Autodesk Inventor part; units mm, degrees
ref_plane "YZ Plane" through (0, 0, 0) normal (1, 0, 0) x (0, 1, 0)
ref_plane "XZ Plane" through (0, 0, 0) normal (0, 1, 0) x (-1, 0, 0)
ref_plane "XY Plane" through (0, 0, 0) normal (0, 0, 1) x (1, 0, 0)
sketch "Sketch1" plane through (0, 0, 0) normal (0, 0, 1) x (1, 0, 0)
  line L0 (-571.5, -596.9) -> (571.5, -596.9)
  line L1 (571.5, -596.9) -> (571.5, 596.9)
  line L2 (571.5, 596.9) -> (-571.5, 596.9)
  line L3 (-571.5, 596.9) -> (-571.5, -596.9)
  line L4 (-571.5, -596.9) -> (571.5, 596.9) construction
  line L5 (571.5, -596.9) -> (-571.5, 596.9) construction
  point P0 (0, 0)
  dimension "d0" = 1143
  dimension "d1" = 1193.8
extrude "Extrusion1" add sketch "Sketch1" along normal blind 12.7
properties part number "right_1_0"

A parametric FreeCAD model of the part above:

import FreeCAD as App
import Part
import Sketcher
Q = App.Units.Quantity

doc = App.newDocument("Part")
params = doc.addObject("Spreadsheet::Sheet", "Params")
for row, (alias, value) in enumerate([
    ("sketch1_width", "45 in"),
    ("sketch1_height", "47 in"),
    ("pad1_length", "0.5 in"),
], start=1):
    params.set(f"A{row}", alias)
    params.set(f"B{row}", "=" + value)
    params.setAlias(f"B{row}", alias)

body = doc.addObject("PartDesign::Body", "Body")

sketch1 = body.newObject("Sketcher::SketchObject", "Sketch")
sketch1.AttachmentSupport = (doc.getObject("XY_Plane"), [""])
sketch1.MapMode = "FlatFace"
sketch1.addGeometry(Part.LineSegment(App.Vector(-572, 597, 0), App.Vector(-572, -597, 0)), False)
sketch1.addGeometry(Part.LineSegment(App.Vector(-572, -597, 0), App.Vector(572, -597, 0)), False)
sketch1.addGeometry(Part.LineSegment(App.Vector(572, -597, 0), App.Vector(572, 597, 0)), False)
sketch1.addGeometry(Part.LineSegment(App.Vector(572, 597, 0), App.Vector(-572, 597, 0)), False)
sketch1.addConstraint(Sketcher.Constraint("Coincident", 0, 2, 1, 1))
sketch1.addConstraint(Sketcher.Constraint("Coincident", 1, 2, 2, 1))
sketch1.addConstraint(Sketcher.Constraint("Coincident", 2, 2, 3, 1))
sketch1.addConstraint(Sketcher.Constraint("Coincident", 3, 2, 0, 1))
sketch1.addConstraint(Sketcher.Constraint("Vertical", 0))
sketch1.addConstraint(Sketcher.Constraint("Horizontal", 1))
sketch1.addConstraint(Sketcher.Constraint("Vertical", 2))
sketch1.addConstraint(Sketcher.Constraint("Horizontal", 3))
sketch1.addConstraint(Sketcher.Constraint("Symmetric", 0, 2, 2, 2, -1, 1))
sketch1.addConstraint(Sketcher.Constraint("DistanceX", 1, 1, 1, 2, Q("45 in")))
sketch1.addConstraint(Sketcher.Constraint("DistanceY", 0, 2, 0, 1, Q("47 in")))
sketch1.setExpression("Constraints[9]", "Params.sketch1_width")
sketch1.setExpression("Constraints[10]", "Params.sketch1_height")
pad1 = body.newObject("PartDesign::Pad", "Pad")
pad1.Profile = sketch1
pad1.setExpression("Length", "Params.pad1_length")

doc.recompute()
